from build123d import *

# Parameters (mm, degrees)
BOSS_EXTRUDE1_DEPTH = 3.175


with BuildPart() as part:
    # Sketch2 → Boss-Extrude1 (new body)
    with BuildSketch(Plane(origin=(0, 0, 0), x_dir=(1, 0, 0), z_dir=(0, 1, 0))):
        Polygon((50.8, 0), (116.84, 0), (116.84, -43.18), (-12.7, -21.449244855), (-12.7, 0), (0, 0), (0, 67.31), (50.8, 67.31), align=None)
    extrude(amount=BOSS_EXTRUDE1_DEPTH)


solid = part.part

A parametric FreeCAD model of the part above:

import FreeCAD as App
import Part
import Sketcher
Q = App.Units.Quantity


def add_polygon(sketch, points):
    """Adds a closed chain of lines whose ends are joined by coincident constraints."""
    first, n = sketch.GeometryCount, len(points)
    for a, b in zip(points, points[1:] + points[:1]):
        sketch.addGeometry(Part.LineSegment(App.Vector(*a, 0), App.Vector(*b, 0)), False)
    for i in range(n):
        sketch.addConstraint(Sketcher.Constraint("Coincident", first + i, 2, first + (i + 1) % n, 1))

doc = App.newDocument("Part")
body = doc.addObject("PartDesign::Body", "Body")

# Sketch on XZ plane
sketch1 = body.newObject("Sketcher::SketchObject", "Sketch")
sketch1.AttachmentSupport = (doc.getObject("XZ_Plane"), [""])
sketch1.MapMode = "FlatFace"
add_polygon(sketch1, [(116.84, 0), (50.8, 0), (50.8, -67.31), (0, -67.31), (0, 0), (-12.7, 0), (-12.7, 21.449245), (116.84, 43.18)])  # lines 0-7
sketch1.addConstraint(Sketcher.Constraint("Horizontal", 0))
sketch1.addConstraint(Sketcher.Constraint("Vertical", 1))
sketch1.addConstraint(Sketcher.Constraint("Horizontal", 2))
sketch1.addConstraint(Sketcher.Constraint("Vertical", 3))
sketch1.addConstraint(Sketcher.Constraint("Horizontal", 4))
sketch1.addConstraint(Sketcher.Constraint("Vertical", 5))
sketch1.addConstraint(Sketcher.Constraint("Vertical", 7))
sketch1.addConstraint(Sketcher.Constraint("Coincident", 3, 2, -1, 1))
sketch1.addConstraint(Sketcher.Constraint("PointOnObject", 0, 2, -1))
sketch1.addConstraint(Sketcher.Constraint("DistanceX", 2, 2, 2, 1, Q("2 in")))
sketch1.addConstraint(Sketcher.Constraint("DistanceX", 0, 2, 0, 1, Q("2.6 in")))
sketch1.addConstraint(Sketcher.Constraint("DistanceX", 4, 2, 4, 1, Q("0.5 in")))
sketch1.addConstraint(Sketcher.Constraint("DistanceY", 7, 2, 7, 1, Q("1.7 in")))
sketch1.addConstraint(Sketcher.Constraint("DistanceY", 1, 2, 1, 1, Q("2.65 in")))
sketch1.addConstraint(Sketcher.Constraint("DistanceY", 5, 1, 5, 2, 21.449245))
pad1 = body.newObject("PartDesign::Pad", "Pad")
pad1.Profile = sketch1
pad1.Length = Q("0.125 in")
pad1.Reversed = True

doc.recompute()
